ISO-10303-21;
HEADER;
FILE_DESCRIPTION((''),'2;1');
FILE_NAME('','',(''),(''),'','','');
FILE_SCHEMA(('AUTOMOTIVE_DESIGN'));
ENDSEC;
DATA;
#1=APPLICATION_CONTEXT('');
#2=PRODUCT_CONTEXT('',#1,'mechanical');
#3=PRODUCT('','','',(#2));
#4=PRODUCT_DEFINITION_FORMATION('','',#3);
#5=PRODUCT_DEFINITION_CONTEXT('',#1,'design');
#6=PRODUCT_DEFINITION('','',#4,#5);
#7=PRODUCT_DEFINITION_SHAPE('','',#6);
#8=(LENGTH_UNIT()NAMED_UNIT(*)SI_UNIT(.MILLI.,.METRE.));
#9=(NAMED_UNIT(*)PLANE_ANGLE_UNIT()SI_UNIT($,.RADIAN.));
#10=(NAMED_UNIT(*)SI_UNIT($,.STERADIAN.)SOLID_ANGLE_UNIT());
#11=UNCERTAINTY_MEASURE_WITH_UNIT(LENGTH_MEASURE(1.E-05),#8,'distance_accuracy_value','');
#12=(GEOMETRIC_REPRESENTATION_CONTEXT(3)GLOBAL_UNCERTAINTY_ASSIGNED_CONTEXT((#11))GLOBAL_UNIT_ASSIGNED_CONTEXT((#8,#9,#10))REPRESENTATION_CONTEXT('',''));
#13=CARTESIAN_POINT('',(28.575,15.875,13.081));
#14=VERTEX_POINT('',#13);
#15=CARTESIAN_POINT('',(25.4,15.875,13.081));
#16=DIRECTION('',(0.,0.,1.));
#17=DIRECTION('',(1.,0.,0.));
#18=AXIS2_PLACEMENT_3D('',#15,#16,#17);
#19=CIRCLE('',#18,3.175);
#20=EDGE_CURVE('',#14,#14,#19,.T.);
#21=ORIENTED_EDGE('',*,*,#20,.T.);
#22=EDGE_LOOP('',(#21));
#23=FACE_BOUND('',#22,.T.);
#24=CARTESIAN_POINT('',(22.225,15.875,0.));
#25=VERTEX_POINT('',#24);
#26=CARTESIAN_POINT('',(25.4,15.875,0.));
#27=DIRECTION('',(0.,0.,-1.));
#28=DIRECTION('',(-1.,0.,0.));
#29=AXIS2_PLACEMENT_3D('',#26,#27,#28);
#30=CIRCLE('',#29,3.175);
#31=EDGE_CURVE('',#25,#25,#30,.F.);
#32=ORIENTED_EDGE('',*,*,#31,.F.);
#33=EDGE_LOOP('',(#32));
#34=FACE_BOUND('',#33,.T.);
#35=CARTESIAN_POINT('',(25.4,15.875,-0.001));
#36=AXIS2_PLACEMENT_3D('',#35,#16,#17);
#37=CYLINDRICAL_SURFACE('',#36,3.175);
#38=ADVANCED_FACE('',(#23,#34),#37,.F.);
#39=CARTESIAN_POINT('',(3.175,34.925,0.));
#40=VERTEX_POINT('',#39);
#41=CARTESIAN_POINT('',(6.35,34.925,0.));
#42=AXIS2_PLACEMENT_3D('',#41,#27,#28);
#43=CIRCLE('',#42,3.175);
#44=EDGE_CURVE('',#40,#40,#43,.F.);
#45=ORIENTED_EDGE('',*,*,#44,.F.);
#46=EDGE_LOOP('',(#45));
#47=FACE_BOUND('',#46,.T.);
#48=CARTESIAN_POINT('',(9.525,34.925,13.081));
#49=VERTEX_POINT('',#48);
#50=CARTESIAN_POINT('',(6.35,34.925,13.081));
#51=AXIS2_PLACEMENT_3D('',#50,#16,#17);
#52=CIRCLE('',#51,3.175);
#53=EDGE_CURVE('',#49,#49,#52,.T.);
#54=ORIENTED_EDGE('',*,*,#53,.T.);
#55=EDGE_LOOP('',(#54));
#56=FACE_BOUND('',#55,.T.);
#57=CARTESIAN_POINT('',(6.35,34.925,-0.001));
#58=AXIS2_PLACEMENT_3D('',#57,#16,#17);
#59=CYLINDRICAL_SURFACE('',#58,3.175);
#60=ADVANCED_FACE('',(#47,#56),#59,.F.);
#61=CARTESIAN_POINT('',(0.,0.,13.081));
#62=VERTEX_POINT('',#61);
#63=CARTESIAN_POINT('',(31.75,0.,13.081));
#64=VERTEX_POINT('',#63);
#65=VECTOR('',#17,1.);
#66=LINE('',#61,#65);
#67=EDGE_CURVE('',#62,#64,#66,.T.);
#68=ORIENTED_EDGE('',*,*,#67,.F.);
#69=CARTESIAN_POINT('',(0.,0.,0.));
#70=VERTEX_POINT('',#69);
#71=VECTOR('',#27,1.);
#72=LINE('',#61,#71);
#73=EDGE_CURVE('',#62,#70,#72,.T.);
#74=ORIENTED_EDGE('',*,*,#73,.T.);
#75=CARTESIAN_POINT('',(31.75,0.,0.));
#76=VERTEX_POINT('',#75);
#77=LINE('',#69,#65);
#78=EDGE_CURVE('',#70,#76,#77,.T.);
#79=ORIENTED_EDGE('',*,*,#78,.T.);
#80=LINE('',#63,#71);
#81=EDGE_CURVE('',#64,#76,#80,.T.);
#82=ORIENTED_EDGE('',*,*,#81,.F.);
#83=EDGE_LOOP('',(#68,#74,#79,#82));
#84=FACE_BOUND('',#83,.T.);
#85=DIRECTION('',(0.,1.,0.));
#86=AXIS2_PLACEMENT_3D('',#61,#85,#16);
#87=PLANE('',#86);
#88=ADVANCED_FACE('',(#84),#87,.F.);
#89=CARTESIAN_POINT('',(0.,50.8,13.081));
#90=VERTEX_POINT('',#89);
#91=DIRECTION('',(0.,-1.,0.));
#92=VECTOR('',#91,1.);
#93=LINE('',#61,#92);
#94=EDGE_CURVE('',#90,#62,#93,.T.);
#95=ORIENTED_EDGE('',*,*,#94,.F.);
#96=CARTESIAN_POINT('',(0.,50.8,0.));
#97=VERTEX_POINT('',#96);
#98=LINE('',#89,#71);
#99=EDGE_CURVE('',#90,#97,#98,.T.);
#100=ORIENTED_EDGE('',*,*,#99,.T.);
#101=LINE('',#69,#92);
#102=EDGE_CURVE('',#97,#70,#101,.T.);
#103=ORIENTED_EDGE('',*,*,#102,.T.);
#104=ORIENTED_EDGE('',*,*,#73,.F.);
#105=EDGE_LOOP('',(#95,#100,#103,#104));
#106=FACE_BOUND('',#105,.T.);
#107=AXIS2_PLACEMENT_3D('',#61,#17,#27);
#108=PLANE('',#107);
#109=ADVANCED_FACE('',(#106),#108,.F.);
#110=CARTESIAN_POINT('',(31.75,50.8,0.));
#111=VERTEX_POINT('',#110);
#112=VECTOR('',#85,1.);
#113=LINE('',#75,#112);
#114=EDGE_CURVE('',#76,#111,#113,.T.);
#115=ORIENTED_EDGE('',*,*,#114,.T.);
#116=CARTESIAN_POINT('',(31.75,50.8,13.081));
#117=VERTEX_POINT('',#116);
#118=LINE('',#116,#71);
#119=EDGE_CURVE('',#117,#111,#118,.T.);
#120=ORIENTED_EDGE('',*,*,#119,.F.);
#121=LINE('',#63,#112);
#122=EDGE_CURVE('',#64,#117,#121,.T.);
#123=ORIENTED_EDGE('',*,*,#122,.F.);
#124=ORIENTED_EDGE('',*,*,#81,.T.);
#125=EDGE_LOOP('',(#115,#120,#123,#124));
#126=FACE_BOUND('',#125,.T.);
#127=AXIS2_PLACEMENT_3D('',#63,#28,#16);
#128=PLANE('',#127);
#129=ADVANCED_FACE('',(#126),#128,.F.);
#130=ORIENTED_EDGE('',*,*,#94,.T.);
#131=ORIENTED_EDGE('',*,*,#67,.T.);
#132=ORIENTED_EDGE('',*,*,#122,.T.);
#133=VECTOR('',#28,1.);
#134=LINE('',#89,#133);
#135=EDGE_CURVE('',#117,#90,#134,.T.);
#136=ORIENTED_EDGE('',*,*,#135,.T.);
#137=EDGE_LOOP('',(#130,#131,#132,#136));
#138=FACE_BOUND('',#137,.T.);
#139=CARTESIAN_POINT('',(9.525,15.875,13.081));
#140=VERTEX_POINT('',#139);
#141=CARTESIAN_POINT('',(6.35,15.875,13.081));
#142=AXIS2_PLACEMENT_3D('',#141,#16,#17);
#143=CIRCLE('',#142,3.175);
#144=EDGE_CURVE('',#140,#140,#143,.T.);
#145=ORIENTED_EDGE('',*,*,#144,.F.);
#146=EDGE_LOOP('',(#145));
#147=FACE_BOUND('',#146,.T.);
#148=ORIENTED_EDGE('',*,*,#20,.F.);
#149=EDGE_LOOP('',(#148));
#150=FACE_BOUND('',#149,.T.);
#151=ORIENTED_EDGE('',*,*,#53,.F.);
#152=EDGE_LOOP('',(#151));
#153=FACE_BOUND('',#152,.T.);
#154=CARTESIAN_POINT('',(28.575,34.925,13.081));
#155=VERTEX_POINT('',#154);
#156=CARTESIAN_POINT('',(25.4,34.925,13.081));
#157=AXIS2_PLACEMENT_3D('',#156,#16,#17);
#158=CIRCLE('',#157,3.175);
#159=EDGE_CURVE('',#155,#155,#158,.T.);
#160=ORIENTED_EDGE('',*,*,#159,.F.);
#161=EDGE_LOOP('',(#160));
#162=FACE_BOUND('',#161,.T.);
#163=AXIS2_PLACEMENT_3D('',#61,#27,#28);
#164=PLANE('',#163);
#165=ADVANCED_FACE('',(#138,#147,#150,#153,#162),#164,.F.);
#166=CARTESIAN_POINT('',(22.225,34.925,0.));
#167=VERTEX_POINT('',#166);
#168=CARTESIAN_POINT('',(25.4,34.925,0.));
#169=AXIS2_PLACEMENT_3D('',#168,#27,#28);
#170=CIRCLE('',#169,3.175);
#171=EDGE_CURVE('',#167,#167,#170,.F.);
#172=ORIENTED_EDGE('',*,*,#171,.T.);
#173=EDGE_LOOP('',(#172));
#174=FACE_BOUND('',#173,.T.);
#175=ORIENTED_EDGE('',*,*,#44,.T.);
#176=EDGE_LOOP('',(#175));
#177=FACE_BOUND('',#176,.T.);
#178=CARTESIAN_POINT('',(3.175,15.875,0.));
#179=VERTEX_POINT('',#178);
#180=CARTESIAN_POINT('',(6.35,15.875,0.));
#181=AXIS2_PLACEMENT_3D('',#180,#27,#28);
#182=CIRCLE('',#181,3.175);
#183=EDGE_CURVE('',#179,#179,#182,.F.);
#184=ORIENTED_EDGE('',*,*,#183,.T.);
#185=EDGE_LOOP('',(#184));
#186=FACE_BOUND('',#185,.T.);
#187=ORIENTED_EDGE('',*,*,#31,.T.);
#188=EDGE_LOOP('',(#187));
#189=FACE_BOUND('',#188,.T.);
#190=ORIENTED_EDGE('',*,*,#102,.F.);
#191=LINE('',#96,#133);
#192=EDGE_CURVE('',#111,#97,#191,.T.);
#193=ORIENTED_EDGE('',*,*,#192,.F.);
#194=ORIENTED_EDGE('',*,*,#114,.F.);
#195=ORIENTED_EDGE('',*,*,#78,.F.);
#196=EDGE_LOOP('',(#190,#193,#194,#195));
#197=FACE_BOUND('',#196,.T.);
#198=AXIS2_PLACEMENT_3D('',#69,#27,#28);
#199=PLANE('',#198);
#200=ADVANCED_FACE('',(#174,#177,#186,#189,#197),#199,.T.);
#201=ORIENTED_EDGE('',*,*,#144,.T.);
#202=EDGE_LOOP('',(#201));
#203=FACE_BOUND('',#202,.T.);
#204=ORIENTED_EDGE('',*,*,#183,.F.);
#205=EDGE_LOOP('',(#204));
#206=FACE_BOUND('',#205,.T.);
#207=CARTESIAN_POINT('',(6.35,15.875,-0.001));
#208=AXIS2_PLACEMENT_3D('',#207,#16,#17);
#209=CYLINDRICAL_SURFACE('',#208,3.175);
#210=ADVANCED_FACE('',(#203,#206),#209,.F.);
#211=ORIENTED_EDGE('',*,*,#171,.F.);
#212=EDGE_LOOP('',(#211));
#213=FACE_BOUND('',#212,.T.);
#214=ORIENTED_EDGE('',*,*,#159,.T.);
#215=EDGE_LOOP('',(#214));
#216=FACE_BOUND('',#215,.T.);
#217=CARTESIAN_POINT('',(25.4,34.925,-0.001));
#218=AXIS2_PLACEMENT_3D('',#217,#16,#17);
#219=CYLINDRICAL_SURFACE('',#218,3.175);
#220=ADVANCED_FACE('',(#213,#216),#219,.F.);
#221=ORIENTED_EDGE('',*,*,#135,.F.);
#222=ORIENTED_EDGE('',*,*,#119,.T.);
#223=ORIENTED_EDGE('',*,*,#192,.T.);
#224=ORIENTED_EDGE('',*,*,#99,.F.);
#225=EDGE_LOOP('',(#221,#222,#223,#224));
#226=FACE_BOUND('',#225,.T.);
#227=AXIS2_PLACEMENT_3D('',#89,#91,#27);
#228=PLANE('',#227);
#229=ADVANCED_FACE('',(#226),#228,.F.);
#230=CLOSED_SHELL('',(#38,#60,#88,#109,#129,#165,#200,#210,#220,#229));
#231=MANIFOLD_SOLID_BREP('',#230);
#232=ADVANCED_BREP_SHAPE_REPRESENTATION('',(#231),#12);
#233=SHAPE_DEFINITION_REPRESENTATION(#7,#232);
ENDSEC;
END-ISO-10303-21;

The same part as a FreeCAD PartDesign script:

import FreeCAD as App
import Part
import Sketcher
from FreeCAD import Vector
Q = App.Units.Quantity

doc = App.newDocument("Part")
body = doc.addObject("PartDesign::Body", "Body")

# Sketch on XY plane
sketch1 = body.newObject("Sketcher::SketchObject", "Sketch")
sketch1.AttachmentSupport = (doc.getObject("XY_Plane"), [""])
sketch1.MapMode = "FlatFace"
sketch1.addGeometry(Part.LineSegment(Vector(0, 50.8, 0), Vector(0, 0, 0)), False)
sketch1.addGeometry(Part.LineSegment(Vector(0, 0, 0), Vector(31.75, 0, 0)), False)
sketch1.addGeometry(Part.LineSegment(Vector(31.75, 0, 0), Vector(31.75, 50.8, 0)), False)
sketch1.addGeometry(Part.LineSegment(Vector(31.75, 50.8, 0), Vector(0, 50.8, 0)), False)
sketch1.addConstraint(Sketcher.Constraint("Coincident", 0, 2, 1, 1))
sketch1.addConstraint(Sketcher.Constraint("Coincident", 1, 2, 2, 1))
sketch1.addConstraint(Sketcher.Constraint("Coincident", 2, 2, 3, 1))
sketch1.addConstraint(Sketcher.Constraint("Coincident", 3, 2, 0, 1))
sketch1.addConstraint(Sketcher.Constraint("Vertical", 0))
sketch1.addConstraint(Sketcher.Constraint("Horizontal", 1))
sketch1.addConstraint(Sketcher.Constraint("Vertical", 2))
sketch1.addConstraint(Sketcher.Constraint("Horizontal", 3))
sketch1.addConstraint(Sketcher.Constraint("Coincident", 0, 2, -1, 1))
sketch1.addConstraint(Sketcher.Constraint("DistanceY", 0, 2, 0, 1, Q("2 in")))
sketch1.addConstraint(Sketcher.Constraint("DistanceX", 1, 1, 1, 2, Q("1.25 in")))
pad1 = body.newObject("PartDesign::Pad", "Pad")
pad1.Profile = sketch1
pad1.Length = Q("0.515 in")

# Sketch on XY plane
sketch2 = body.newObject("Sketcher::SketchObject", "Sketch001")
sketch2.AttachmentSupport = (doc.getObject("XY_Plane"), [""])
sketch2.MapMode = "FlatFace"
sketch2.AttachmentOffset = App.Placement(Vector(0, 0, 0.515 * 25.4), App.Rotation())
sketch2.addGeometry(Part.Circle(Vector(25.4, 34.925, 0), Vector(0, 0, 1), 3.175), False)
sketch2.addConstraint(Sketcher.Constraint("Diameter", 0, Q("0.25 in")))
sketch2.addConstraint(Sketcher.Constraint("DistanceX", -1, 1, 0, 3, Q("1 in")))
sketch2.addConstraint(Sketcher.Constraint("DistanceY", -1, 1, 0, 3, Q("1.375 in")))
pocket1 = body.newObject("PartDesign::Pocket", "Pocket")
pocket1.Profile = sketch2
pocket1.Type = "UpToFirst"

# Sketch on XY plane
sketch3 = body.newObject("Sketcher::SketchObject", "Sketch002")
sketch3.AttachmentSupport = (doc.getObject("XY_Plane"), [""])
sketch3.MapMode = "FlatFace"
sketch3.AttachmentOffset = App.Placement(Vector(0, 0, 0.515 * 25.4), App.Rotation())
sketch3.addGeometry(Part.Circle(Vector(6.35, 34.925, 0), Vector(0, 0, 1), 3.175), False)
sketch3.addConstraint(Sketcher.Constraint("Diameter", 0, Q("0.25 in")))
sketch3.addConstraint(Sketcher.Constraint("DistanceX", -1, 1, 0, 3, Q("0.25 in")))
sketch3.addConstraint(Sketcher.Constraint("DistanceY", -1, 1, 0, 3, Q("1.375 in")))
pocket2 = body.newObject("PartDesign::Pocket", "Pocket001")
pocket2.Profile = sketch3
pocket2.Type = "UpToFirst"

# Sketch on XY plane
sketch4 = body.newObject("Sketcher::SketchObject", "Sketch003")
sketch4.AttachmentSupport = (doc.getObject("XY_Plane"), [""])
sketch4.MapMode = "FlatFace"
sketch4.AttachmentOffset = App.Placement(Vector(0, 0, 0.515 * 25.4), App.Rotation())
sketch4.addGeometry(Part.Circle(Vector(6.35, 15.875, 0), Vector(0, 0, 1), 3.175), False)
sketch4.addConstraint(Sketcher.Constraint("Diameter", 0, Q("0.25 in")))
sketch4.addConstraint(Sketcher.Constraint("DistanceX", -1, 1, 0, 3, Q("0.25 in")))
sketch4.addConstraint(Sketcher.Constraint("DistanceY", -1, 1, 0, 3, Q("0.625 in")))
pocket3 = body.newObject("PartDesign::Pocket", "Pocket002")
pocket3.Profile = sketch4
pocket3.Type = "UpToFirst"

# Sketch on XY plane
sketch5 = body.newObject("Sketcher::SketchObject", "Sketch004")
sketch5.AttachmentSupport = (doc.getObject("XY_Plane"), [""])
sketch5.MapMode = "FlatFace"
sketch5.AttachmentOffset = App.Placement(Vector(0, 0, 0.515 * 25.4), App.Rotation())
sketch5.addGeometry(Part.Circle(Vector(25.4, 15.875, 0), Vector(0, 0, 1), 3.175), False)
sketch5.addConstraint(Sketcher.Constraint("Diameter", 0, Q("0.25 in")))
sketch5.addConstraint(Sketcher.Constraint("DistanceX", -1, 1, 0, 3, Q("1 in")))
sketch5.addConstraint(Sketcher.Constraint("DistanceY", -1, 1, 0, 3, Q("0.625 in")))
pocket4 = body.newObject("PartDesign::Pocket", "Pocket003")
pocket4.Profile = sketch5
pocket4.Type = "UpToFirst"

doc.recompute()
